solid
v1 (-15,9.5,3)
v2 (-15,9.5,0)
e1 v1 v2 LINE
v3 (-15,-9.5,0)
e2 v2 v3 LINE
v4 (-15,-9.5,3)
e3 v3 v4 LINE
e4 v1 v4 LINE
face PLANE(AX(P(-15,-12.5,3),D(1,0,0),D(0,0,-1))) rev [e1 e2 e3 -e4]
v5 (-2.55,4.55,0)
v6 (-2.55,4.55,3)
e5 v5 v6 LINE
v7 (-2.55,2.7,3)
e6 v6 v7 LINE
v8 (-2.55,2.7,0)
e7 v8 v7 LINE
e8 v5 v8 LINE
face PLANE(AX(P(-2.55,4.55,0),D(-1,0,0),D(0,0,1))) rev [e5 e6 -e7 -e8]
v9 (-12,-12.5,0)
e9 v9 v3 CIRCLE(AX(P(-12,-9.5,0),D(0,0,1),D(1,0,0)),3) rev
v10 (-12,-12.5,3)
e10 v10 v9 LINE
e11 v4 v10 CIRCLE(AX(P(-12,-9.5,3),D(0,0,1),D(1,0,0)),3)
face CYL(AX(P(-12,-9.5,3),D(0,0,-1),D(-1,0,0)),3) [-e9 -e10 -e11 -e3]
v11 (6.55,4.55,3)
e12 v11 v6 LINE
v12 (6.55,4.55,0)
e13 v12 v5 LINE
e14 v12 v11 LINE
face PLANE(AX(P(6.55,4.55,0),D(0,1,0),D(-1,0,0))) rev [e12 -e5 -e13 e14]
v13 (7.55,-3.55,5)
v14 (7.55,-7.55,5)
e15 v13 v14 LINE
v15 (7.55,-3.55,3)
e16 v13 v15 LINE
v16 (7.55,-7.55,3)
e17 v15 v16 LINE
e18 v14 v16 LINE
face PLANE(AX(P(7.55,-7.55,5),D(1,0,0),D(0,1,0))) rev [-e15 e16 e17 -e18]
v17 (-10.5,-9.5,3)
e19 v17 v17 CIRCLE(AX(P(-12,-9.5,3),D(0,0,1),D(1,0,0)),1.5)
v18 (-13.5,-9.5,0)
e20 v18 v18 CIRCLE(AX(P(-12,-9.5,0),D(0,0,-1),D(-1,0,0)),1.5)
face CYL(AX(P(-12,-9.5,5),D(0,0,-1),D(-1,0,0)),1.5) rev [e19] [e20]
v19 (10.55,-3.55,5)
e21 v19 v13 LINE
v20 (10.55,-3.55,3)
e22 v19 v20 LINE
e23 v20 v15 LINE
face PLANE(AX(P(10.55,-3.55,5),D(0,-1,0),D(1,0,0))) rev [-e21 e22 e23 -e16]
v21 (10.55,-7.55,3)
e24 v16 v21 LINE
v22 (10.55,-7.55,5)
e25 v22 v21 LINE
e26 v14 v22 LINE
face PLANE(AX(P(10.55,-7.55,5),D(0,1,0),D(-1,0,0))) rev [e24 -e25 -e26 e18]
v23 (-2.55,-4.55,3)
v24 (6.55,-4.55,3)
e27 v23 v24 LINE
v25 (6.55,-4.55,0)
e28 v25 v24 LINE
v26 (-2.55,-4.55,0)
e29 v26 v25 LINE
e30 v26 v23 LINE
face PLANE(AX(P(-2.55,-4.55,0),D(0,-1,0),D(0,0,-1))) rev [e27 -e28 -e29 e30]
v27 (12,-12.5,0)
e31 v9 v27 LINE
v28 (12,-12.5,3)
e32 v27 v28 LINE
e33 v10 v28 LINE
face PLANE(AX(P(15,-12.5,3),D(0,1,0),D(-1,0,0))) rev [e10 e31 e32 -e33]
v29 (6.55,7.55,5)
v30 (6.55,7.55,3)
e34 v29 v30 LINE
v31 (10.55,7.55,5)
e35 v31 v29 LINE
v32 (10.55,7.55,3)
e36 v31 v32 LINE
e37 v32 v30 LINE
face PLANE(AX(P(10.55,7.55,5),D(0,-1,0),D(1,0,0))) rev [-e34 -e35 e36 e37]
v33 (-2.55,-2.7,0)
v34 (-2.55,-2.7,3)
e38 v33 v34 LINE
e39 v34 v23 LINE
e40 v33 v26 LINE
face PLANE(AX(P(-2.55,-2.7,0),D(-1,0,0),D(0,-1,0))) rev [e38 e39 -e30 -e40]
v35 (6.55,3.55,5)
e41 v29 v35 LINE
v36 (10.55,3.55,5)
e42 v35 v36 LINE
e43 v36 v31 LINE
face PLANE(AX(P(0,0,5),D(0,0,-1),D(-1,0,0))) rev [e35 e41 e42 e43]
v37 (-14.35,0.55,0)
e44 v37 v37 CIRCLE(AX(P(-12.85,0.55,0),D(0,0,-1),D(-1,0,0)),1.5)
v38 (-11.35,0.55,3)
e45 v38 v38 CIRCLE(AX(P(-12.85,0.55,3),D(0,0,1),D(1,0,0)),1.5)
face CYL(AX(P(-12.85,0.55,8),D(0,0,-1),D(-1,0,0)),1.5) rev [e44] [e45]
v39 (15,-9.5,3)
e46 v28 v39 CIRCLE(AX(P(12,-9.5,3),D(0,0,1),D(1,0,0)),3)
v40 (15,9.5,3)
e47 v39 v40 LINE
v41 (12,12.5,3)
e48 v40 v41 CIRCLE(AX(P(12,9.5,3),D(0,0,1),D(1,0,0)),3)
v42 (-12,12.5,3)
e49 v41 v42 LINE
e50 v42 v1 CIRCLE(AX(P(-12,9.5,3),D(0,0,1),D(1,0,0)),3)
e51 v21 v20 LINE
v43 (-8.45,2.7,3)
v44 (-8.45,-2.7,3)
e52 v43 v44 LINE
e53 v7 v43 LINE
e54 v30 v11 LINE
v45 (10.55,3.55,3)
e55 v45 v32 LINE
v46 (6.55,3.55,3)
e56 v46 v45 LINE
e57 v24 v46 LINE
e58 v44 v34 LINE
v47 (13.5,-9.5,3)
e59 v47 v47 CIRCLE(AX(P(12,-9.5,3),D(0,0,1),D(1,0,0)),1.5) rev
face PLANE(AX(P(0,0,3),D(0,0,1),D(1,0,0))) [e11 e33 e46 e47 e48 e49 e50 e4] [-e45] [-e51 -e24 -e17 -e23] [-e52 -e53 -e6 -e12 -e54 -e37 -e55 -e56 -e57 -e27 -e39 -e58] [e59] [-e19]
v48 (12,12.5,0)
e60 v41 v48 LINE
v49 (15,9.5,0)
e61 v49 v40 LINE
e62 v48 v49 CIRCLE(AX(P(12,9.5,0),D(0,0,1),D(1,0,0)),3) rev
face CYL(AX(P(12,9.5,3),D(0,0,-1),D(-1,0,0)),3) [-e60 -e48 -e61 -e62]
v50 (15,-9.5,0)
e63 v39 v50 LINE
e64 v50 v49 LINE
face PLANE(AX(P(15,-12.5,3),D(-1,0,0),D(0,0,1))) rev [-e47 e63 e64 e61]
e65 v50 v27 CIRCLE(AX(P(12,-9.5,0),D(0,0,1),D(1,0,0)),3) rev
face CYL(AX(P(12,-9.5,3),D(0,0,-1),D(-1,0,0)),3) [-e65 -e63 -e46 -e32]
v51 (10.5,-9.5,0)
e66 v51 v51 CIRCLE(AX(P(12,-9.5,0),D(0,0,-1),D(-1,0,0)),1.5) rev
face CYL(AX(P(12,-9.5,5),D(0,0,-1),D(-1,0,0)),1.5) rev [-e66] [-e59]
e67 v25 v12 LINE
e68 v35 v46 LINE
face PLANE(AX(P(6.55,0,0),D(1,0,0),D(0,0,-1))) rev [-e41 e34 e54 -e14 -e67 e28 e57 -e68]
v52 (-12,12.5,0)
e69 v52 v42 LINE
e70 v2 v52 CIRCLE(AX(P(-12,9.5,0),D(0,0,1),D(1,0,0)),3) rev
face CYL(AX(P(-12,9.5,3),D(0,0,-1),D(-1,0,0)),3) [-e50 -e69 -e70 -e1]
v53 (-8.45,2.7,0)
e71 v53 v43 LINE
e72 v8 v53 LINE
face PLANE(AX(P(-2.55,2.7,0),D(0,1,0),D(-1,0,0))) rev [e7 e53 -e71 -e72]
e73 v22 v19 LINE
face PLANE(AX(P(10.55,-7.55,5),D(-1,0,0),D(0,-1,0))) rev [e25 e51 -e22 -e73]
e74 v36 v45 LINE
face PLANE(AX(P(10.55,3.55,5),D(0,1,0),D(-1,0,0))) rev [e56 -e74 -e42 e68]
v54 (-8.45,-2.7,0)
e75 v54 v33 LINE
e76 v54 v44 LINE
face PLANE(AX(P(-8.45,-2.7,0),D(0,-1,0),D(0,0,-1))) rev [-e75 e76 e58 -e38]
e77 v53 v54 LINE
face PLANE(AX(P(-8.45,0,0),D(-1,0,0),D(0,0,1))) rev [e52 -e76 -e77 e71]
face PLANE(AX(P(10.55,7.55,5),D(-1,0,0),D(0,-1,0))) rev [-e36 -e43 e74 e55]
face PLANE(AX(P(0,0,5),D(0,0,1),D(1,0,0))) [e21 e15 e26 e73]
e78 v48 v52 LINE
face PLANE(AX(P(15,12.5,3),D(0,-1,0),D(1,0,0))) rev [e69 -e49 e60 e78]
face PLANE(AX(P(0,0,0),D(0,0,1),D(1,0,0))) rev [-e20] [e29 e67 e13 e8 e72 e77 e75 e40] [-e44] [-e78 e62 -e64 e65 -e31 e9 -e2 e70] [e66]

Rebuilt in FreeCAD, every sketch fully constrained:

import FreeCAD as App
import Part
import Sketcher

V = App.Vector
Q = App.Units.Quantity


def edges_at(feature, points):
    """Names of the edges that pass closest to the given points."""
    edges = feature.Shape.Edges
    near = lambda p: min(range(len(edges)), key=lambda i: edges[i].distToShape(Part.Vertex(*p))[0])
    return sorted({f"Edge{near(p) + 1}" for p in points})

doc = App.newDocument("Part")
params = doc.addObject("Spreadsheet::Sheet", "Params")
for row, (alias, value) in enumerate([
    ("sketch1_width", "30 mm"),
    ("sketch1_height", "25 mm"),
    ("pad1_length", "3 mm"),
    ("sketch2_width", "9.1 mm"),
    ("sketch2_width2", "5.9 mm"),
    ("sketch2_height", "5.4 mm"),
    ("sketch3_width", "4 mm"),
    ("sketch3_width2", "3 mm"),
    ("pad2_length", "2 mm"),
    ("fillet_radius", "3 mm"),
    ("sketch4_diameter", "3 mm"),
    ("sketch5_diameter", "3 mm"),
    ("pocket3_length", "8 mm"),
], start=1):
    params.set(f"A{row}", alias)
    params.set(f"B{row}", "=" + value)
    params.setAlias(f"B{row}", alias)

body = doc.addObject("PartDesign::Body", "Body")

# Sketch on XY plane
sketch1 = doc.addObject("Sketcher::SketchObject", "Sketch")
body.addObject(sketch1)
sketch1.AttachmentSupport = (doc.XY_Plane, [""])
sketch1.MapMode = "FlatFace"
sketch1.addGeometry(Part.LineSegment(V(-15, 12, 0), V(-15, -12, 0)), False)
sketch1.addGeometry(Part.LineSegment(V(-15, -12, 0), V(15, -12, 0)), False)
sketch1.addGeometry(Part.LineSegment(V(15, -12, 0), V(15, 12, 0)), False)
sketch1.addGeometry(Part.LineSegment(V(15, 12, 0), V(-15, 12, 0)), False)
sketch1.addConstraint(Sketcher.Constraint("Coincident", 0, 2, 1, 1))
sketch1.addConstraint(Sketcher.Constraint("Coincident", 1, 2, 2, 1))
sketch1.addConstraint(Sketcher.Constraint("Coincident", 2, 2, 3, 1))
sketch1.addConstraint(Sketcher.Constraint("Coincident", 3, 2, 0, 1))
sketch1.addConstraint(Sketcher.Constraint("Vertical", 0))
sketch1.addConstraint(Sketcher.Constraint("Horizontal", 1))
sketch1.addConstraint(Sketcher.Constraint("Vertical", 2))
sketch1.addConstraint(Sketcher.Constraint("Horizontal", 3))
sketch1.addConstraint(Sketcher.Constraint("Symmetric", 0, 2, 2, 2, -1, 1))
sketch1.addConstraint(Sketcher.Constraint("DistanceX", 1, 1, 1, 2, Q("30 mm")))
sketch1.addConstraint(Sketcher.Constraint("DistanceY", 0, 2, 0, 1, Q("25 mm")))
sketch1.setExpression("Constraints[9]", "Params.sketch1_width")
sketch1.setExpression("Constraints[10]", "Params.sketch1_height")
pad1 = doc.addObject("PartDesign::Pad", "Pad")
body.addObject(pad1)
pad1.Profile = sketch1
pad1.setExpression("Length", "Params.pad1_length")

# Sketch on XY plane
sketch2 = doc.addObject("Sketcher::SketchObject", "Sketch001")
body.addObject(sketch2)
sketch2.AttachmentSupport = (doc.XY_Plane, [""])
sketch2.MapMode = "FlatFace"
sketch2.AttachmentOffset = App.Placement(V(0, 0, 3), App.Rotation())
sketch2.addGeometry(Part.LineSegment(V(6.5, 4.5, 0), V(-2.5, 4.5, 0)), False)
sketch2.addGeometry(Part.LineSegment(V(-2.5, 4.5, 0), V(-2.5, 2.7, 0)), False)
sketch2.addGeometry(Part.LineSegment(V(-2.5, 2.7, 0), V(-8.4, 2.7, 0)), False)
sketch2.addGeometry(Part.LineSegment(V(-8.4, 2.7, 0), V(-8.4, -2.7, 0)), False)
sketch2.addGeometry(Part.LineSegment(V(-8.4, -2.7, 0), V(-2.5, -2.7, 0)), False)
sketch2.addGeometry(Part.LineSegment(V(-2.5, -2.7, 0), V(-2.5, -4.5, 0)), False)
sketch2.addGeometry(Part.LineSegment(V(-2.5, -4.5, 0), V(6.5, -4.5, 0)), False)
sketch2.addGeometry(Part.LineSegment(V(6.5, -4.5, 0), V(6.5, 4.5, 0)), False)
sketch2.addConstraint(Sketcher.Constraint("Coincident", 0, 2, 1, 1))
sketch2.addConstraint(Sketcher.Constraint("Coincident", 1, 2, 2, 1))
sketch2.addConstraint(Sketcher.Constraint("Coincident", 2, 2, 3, 1))
sketch2.addConstraint(Sketcher.Constraint("Coincident", 3, 2, 4, 1))
sketch2.addConstraint(Sketcher.Constraint("Coincident", 4, 2, 5, 1))
sketch2.addConstraint(Sketcher.Constraint("Coincident", 5, 2, 6, 1))
sketch2.addConstraint(Sketcher.Constraint("Coincident", 6, 2, 7, 1))
sketch2.addConstraint(Sketcher.Constraint("Coincident", 7, 2, 0, 1))
sketch2.addConstraint(Sketcher.Constraint("Horizontal", 0))
sketch2.addConstraint(Sketcher.Constraint("Vertical", 1))
sketch2.addConstraint(Sketcher.Constraint("Horizontal", 2))
sketch2.addConstraint(Sketcher.Constraint("Vertical", 3))
sketch2.addConstraint(Sketcher.Constraint("Horizontal", 4))
sketch2.addConstraint(Sketcher.Constraint("Vertical", 5))
sketch2.addConstraint(Sketcher.Constraint("Horizontal", 6))
sketch2.addConstraint(Sketcher.Constraint("Vertical", 7))
sketch2.addConstraint(Sketcher.Constraint("Symmetric", 1, 2, 4, 2, -1))
sketch2.addConstraint(Sketcher.Constraint("Equal", 1, 5))
sketch2.addConstraint(Sketcher.Constraint("Equal", 6, 7))
sketch2.addConstraint(Sketcher.Constraint("DistanceX", 0, 2, 0, 1, Q("9.1 mm")))
sketch2.addConstraint(Sketcher.Constraint("DistanceX", 2, 2, 2, 1, Q("5.9 mm")))
sketch2.addConstraint(Sketcher.Constraint("DistanceY", 3, 2, 3, 1, Q("5.4 mm")))
sketch2.addConstraint(Sketcher.Constraint("DistanceX", 0, 2, -1, 1, Q("2.55 mm")))
sketch2.setExpression("Constraints[19]", "Params.sketch2_width")
sketch2.setExpression("Constraints[20]", "Params.sketch2_width2")
sketch2.setExpression("Constraints[21]", "Params.sketch2_height")
pocket1 = doc.addObject("PartDesign::Pocket", "Pocket")
body.addObject(pocket1)
pocket1.Profile = sketch2
pocket1.Type = "ThroughAll"

# Sketch on XY plane
sketch3 = doc.addObject("Sketcher::SketchObject", "Sketch002")
body.addObject(sketch3)
sketch3.AttachmentSupport = (doc.XY_Plane, [""])
sketch3.MapMode = "FlatFace"
sketch3.AttachmentOffset = App.Placement(V(0, 0, 3), App.Rotation())
sketch3.addGeometry(Part.LineSegment(V(6.5, 7.5, 0), V(6.5, 3.5, 0)), False)
sketch3.addGeometry(Part.LineSegment(V(6.5, 3.5, 0), V(10.6, 3.5, 0)), False)
sketch3.addGeometry(Part.LineSegment(V(10.6, 3.5, 0), V(10.6, 7.5, 0)), False)
sketch3.addGeometry(Part.LineSegment(V(10.6, 7.5, 0), V(6.5, 7.5, 0)), False)
sketch3.addGeometry(Part.LineSegment(V(7.5, -3.5, 0), V(7.5, -7.5, 0)), False)
sketch3.addGeometry(Part.LineSegment(V(7.5, -7.5, 0), V(10.6, -7.5, 0)), False)
sketch3.addGeometry(Part.LineSegment(V(10.6, -7.5, 0), V(10.6, -3.5, 0)), False)
sketch3.addGeometry(Part.LineSegment(V(10.6, -3.5, 0), V(7.5, -3.5, 0)), False)
sketch3.addConstraint(Sketcher.Constraint("Coincident", 0, 2, 1, 1))
sketch3.addConstraint(Sketcher.Constraint("Coincident", 1, 2, 2, 1))
sketch3.addConstraint(Sketcher.Constraint("Coincident", 2, 2, 3, 1))
sketch3.addConstraint(Sketcher.Constraint("Coincident", 3, 2, 0, 1))
sketch3.addConstraint(Sketcher.Constraint("Coincident", 4, 2, 5, 1))
sketch3.addConstraint(Sketcher.Constraint("Coincident", 5, 2, 6, 1))
sketch3.addConstraint(Sketcher.Constraint("Coincident", 6, 2, 7, 1))
sketch3.addConstraint(Sketcher.Constraint("Coincident", 7, 2, 4, 1))
sketch3.addConstraint(Sketcher.Constraint("Vertical", 0))
sketch3.addConstraint(Sketcher.Constraint("Horizontal", 1))
sketch3.addConstraint(Sketcher.Constraint("Vertical", 2))
sketch3.addConstraint(Sketcher.Constraint("Horizontal", 3))
sketch3.addConstraint(Sketcher.Constraint("Vertical", 4))
sketch3.addConstraint(Sketcher.Constraint("Horizontal", 5))
sketch3.addConstraint(Sketcher.Constraint("Vertical", 6))
sketch3.addConstraint(Sketcher.Constraint("Horizontal", 7))
sketch3.addConstraint(Sketcher.Constraint("Symmetric", 2, 2, 5, 2, -1))
sketch3.addConstraint(Sketcher.Constraint("Equal", 3, 0))
sketch3.addConstraint(Sketcher.Constraint("Equal", 2, 4))
sketch3.addConstraint(Sketcher.Constraint("DistanceX", 1, 1, 1, 2, Q("4 mm")))
sketch3.addConstraint(Sketcher.Constraint("DistanceX", 5, 1, 5, 2, Q("3 mm")))
sketch3.addConstraint(Sketcher.Constraint("DistanceY", 4, 2, 0, 2, Q("11.1 mm")))
sketch3.addConstraint(Sketcher.Constraint("DistanceX", -1, 1, 0, 2, Q("6.55 mm")))
sketch3.setExpression("Constraints[19]", "Params.sketch3_width")
sketch3.setExpression("Constraints[20]", "Params.sketch3_width2")
pad2 = doc.addObject("PartDesign::Pad", "Pad001")
body.addObject(pad2)
pad2.Profile = sketch3
pad2.setExpression("Length", "Params.pad2_length")
doc.recompute()

fillet = doc.addObject("PartDesign::Fillet", "Fillet")
body.addObject(fillet)
fillet.Base = (pad2, edges_at(pad2, [
    (-15, 12.5, 1.5),
    (15, 12.5, 1.5),
    (15, -12.5, 1.5),
    (-15, -12.5, 1.5),
]))
fillet.setExpression("Radius", "Params.fillet_radius")

# Sketch on XY plane
sketch4 = doc.addObject("Sketcher::SketchObject", "Sketch003")
body.addObject(sketch4)
sketch4.AttachmentSupport = (doc.XY_Plane, [""])
sketch4.MapMode = "FlatFace"
sketch4.addGeometry(Part.Circle(V(-12, -9.5, 0), V(0, 0, 1), 1.5), False)
sketch4.addGeometry(Part.Circle(V(12, -9.5, 0), V(0, 0, 1), 1.5), False)
sketch4.addConstraint(Sketcher.Constraint("Equal", 0, 1))
sketch4.addConstraint(Sketcher.Constraint("Symmetric", 0, 3, 1, 3, -2))
sketch4.addConstraint(Sketcher.Constraint("Diameter", 0, Q("3 mm")))
sketch4.addConstraint(Sketcher.Constraint("DistanceX", 0, 3, -1, 1, Q("12 mm")))
sketch4.addConstraint(Sketcher.Constraint("DistanceY", 0, 3, -1, 1, Q("9.5 mm")))
sketch4.setExpression("Constraints[2]", "Params.sketch4_diameter")
pocket2 = doc.addObject("PartDesign::Pocket", "Pocket001")
body.addObject(pocket2)
pocket2.Profile = sketch4
pocket2.Type = "ThroughAll"
pocket2.Reversed = True

# Sketch on XY plane
sketch5 = doc.addObject("Sketcher::SketchObject", "Sketch004")
body.addObject(sketch5)
sketch5.AttachmentSupport = (doc.XY_Plane, [""])
sketch5.MapMode = "FlatFace"
sketch5.addGeometry(Part.Circle(V(-12.8, 0.6, 0), V(0, 0, 1), 1.5), False)
sketch5.addConstraint(Sketcher.Constraint("Diameter", 0, Q("3 mm")))
sketch5.addConstraint(Sketcher.Constraint("DistanceX", 0, 3, -1, 1, Q("12.85 mm")))
sketch5.addConstraint(Sketcher.Constraint("DistanceY", -1, 1, 0, 3, Q("0.55 mm")))
sketch5.setExpression("Constraints[0]", "Params.sketch5_diameter")
pocket3 = doc.addObject("PartDesign::Pocket", "Pocket002")
body.addObject(pocket3)
pocket3.Profile = sketch5
pocket3.setExpression("Length", "Params.pocket3_length")
pocket3.Reversed = True

doc.recompute()
